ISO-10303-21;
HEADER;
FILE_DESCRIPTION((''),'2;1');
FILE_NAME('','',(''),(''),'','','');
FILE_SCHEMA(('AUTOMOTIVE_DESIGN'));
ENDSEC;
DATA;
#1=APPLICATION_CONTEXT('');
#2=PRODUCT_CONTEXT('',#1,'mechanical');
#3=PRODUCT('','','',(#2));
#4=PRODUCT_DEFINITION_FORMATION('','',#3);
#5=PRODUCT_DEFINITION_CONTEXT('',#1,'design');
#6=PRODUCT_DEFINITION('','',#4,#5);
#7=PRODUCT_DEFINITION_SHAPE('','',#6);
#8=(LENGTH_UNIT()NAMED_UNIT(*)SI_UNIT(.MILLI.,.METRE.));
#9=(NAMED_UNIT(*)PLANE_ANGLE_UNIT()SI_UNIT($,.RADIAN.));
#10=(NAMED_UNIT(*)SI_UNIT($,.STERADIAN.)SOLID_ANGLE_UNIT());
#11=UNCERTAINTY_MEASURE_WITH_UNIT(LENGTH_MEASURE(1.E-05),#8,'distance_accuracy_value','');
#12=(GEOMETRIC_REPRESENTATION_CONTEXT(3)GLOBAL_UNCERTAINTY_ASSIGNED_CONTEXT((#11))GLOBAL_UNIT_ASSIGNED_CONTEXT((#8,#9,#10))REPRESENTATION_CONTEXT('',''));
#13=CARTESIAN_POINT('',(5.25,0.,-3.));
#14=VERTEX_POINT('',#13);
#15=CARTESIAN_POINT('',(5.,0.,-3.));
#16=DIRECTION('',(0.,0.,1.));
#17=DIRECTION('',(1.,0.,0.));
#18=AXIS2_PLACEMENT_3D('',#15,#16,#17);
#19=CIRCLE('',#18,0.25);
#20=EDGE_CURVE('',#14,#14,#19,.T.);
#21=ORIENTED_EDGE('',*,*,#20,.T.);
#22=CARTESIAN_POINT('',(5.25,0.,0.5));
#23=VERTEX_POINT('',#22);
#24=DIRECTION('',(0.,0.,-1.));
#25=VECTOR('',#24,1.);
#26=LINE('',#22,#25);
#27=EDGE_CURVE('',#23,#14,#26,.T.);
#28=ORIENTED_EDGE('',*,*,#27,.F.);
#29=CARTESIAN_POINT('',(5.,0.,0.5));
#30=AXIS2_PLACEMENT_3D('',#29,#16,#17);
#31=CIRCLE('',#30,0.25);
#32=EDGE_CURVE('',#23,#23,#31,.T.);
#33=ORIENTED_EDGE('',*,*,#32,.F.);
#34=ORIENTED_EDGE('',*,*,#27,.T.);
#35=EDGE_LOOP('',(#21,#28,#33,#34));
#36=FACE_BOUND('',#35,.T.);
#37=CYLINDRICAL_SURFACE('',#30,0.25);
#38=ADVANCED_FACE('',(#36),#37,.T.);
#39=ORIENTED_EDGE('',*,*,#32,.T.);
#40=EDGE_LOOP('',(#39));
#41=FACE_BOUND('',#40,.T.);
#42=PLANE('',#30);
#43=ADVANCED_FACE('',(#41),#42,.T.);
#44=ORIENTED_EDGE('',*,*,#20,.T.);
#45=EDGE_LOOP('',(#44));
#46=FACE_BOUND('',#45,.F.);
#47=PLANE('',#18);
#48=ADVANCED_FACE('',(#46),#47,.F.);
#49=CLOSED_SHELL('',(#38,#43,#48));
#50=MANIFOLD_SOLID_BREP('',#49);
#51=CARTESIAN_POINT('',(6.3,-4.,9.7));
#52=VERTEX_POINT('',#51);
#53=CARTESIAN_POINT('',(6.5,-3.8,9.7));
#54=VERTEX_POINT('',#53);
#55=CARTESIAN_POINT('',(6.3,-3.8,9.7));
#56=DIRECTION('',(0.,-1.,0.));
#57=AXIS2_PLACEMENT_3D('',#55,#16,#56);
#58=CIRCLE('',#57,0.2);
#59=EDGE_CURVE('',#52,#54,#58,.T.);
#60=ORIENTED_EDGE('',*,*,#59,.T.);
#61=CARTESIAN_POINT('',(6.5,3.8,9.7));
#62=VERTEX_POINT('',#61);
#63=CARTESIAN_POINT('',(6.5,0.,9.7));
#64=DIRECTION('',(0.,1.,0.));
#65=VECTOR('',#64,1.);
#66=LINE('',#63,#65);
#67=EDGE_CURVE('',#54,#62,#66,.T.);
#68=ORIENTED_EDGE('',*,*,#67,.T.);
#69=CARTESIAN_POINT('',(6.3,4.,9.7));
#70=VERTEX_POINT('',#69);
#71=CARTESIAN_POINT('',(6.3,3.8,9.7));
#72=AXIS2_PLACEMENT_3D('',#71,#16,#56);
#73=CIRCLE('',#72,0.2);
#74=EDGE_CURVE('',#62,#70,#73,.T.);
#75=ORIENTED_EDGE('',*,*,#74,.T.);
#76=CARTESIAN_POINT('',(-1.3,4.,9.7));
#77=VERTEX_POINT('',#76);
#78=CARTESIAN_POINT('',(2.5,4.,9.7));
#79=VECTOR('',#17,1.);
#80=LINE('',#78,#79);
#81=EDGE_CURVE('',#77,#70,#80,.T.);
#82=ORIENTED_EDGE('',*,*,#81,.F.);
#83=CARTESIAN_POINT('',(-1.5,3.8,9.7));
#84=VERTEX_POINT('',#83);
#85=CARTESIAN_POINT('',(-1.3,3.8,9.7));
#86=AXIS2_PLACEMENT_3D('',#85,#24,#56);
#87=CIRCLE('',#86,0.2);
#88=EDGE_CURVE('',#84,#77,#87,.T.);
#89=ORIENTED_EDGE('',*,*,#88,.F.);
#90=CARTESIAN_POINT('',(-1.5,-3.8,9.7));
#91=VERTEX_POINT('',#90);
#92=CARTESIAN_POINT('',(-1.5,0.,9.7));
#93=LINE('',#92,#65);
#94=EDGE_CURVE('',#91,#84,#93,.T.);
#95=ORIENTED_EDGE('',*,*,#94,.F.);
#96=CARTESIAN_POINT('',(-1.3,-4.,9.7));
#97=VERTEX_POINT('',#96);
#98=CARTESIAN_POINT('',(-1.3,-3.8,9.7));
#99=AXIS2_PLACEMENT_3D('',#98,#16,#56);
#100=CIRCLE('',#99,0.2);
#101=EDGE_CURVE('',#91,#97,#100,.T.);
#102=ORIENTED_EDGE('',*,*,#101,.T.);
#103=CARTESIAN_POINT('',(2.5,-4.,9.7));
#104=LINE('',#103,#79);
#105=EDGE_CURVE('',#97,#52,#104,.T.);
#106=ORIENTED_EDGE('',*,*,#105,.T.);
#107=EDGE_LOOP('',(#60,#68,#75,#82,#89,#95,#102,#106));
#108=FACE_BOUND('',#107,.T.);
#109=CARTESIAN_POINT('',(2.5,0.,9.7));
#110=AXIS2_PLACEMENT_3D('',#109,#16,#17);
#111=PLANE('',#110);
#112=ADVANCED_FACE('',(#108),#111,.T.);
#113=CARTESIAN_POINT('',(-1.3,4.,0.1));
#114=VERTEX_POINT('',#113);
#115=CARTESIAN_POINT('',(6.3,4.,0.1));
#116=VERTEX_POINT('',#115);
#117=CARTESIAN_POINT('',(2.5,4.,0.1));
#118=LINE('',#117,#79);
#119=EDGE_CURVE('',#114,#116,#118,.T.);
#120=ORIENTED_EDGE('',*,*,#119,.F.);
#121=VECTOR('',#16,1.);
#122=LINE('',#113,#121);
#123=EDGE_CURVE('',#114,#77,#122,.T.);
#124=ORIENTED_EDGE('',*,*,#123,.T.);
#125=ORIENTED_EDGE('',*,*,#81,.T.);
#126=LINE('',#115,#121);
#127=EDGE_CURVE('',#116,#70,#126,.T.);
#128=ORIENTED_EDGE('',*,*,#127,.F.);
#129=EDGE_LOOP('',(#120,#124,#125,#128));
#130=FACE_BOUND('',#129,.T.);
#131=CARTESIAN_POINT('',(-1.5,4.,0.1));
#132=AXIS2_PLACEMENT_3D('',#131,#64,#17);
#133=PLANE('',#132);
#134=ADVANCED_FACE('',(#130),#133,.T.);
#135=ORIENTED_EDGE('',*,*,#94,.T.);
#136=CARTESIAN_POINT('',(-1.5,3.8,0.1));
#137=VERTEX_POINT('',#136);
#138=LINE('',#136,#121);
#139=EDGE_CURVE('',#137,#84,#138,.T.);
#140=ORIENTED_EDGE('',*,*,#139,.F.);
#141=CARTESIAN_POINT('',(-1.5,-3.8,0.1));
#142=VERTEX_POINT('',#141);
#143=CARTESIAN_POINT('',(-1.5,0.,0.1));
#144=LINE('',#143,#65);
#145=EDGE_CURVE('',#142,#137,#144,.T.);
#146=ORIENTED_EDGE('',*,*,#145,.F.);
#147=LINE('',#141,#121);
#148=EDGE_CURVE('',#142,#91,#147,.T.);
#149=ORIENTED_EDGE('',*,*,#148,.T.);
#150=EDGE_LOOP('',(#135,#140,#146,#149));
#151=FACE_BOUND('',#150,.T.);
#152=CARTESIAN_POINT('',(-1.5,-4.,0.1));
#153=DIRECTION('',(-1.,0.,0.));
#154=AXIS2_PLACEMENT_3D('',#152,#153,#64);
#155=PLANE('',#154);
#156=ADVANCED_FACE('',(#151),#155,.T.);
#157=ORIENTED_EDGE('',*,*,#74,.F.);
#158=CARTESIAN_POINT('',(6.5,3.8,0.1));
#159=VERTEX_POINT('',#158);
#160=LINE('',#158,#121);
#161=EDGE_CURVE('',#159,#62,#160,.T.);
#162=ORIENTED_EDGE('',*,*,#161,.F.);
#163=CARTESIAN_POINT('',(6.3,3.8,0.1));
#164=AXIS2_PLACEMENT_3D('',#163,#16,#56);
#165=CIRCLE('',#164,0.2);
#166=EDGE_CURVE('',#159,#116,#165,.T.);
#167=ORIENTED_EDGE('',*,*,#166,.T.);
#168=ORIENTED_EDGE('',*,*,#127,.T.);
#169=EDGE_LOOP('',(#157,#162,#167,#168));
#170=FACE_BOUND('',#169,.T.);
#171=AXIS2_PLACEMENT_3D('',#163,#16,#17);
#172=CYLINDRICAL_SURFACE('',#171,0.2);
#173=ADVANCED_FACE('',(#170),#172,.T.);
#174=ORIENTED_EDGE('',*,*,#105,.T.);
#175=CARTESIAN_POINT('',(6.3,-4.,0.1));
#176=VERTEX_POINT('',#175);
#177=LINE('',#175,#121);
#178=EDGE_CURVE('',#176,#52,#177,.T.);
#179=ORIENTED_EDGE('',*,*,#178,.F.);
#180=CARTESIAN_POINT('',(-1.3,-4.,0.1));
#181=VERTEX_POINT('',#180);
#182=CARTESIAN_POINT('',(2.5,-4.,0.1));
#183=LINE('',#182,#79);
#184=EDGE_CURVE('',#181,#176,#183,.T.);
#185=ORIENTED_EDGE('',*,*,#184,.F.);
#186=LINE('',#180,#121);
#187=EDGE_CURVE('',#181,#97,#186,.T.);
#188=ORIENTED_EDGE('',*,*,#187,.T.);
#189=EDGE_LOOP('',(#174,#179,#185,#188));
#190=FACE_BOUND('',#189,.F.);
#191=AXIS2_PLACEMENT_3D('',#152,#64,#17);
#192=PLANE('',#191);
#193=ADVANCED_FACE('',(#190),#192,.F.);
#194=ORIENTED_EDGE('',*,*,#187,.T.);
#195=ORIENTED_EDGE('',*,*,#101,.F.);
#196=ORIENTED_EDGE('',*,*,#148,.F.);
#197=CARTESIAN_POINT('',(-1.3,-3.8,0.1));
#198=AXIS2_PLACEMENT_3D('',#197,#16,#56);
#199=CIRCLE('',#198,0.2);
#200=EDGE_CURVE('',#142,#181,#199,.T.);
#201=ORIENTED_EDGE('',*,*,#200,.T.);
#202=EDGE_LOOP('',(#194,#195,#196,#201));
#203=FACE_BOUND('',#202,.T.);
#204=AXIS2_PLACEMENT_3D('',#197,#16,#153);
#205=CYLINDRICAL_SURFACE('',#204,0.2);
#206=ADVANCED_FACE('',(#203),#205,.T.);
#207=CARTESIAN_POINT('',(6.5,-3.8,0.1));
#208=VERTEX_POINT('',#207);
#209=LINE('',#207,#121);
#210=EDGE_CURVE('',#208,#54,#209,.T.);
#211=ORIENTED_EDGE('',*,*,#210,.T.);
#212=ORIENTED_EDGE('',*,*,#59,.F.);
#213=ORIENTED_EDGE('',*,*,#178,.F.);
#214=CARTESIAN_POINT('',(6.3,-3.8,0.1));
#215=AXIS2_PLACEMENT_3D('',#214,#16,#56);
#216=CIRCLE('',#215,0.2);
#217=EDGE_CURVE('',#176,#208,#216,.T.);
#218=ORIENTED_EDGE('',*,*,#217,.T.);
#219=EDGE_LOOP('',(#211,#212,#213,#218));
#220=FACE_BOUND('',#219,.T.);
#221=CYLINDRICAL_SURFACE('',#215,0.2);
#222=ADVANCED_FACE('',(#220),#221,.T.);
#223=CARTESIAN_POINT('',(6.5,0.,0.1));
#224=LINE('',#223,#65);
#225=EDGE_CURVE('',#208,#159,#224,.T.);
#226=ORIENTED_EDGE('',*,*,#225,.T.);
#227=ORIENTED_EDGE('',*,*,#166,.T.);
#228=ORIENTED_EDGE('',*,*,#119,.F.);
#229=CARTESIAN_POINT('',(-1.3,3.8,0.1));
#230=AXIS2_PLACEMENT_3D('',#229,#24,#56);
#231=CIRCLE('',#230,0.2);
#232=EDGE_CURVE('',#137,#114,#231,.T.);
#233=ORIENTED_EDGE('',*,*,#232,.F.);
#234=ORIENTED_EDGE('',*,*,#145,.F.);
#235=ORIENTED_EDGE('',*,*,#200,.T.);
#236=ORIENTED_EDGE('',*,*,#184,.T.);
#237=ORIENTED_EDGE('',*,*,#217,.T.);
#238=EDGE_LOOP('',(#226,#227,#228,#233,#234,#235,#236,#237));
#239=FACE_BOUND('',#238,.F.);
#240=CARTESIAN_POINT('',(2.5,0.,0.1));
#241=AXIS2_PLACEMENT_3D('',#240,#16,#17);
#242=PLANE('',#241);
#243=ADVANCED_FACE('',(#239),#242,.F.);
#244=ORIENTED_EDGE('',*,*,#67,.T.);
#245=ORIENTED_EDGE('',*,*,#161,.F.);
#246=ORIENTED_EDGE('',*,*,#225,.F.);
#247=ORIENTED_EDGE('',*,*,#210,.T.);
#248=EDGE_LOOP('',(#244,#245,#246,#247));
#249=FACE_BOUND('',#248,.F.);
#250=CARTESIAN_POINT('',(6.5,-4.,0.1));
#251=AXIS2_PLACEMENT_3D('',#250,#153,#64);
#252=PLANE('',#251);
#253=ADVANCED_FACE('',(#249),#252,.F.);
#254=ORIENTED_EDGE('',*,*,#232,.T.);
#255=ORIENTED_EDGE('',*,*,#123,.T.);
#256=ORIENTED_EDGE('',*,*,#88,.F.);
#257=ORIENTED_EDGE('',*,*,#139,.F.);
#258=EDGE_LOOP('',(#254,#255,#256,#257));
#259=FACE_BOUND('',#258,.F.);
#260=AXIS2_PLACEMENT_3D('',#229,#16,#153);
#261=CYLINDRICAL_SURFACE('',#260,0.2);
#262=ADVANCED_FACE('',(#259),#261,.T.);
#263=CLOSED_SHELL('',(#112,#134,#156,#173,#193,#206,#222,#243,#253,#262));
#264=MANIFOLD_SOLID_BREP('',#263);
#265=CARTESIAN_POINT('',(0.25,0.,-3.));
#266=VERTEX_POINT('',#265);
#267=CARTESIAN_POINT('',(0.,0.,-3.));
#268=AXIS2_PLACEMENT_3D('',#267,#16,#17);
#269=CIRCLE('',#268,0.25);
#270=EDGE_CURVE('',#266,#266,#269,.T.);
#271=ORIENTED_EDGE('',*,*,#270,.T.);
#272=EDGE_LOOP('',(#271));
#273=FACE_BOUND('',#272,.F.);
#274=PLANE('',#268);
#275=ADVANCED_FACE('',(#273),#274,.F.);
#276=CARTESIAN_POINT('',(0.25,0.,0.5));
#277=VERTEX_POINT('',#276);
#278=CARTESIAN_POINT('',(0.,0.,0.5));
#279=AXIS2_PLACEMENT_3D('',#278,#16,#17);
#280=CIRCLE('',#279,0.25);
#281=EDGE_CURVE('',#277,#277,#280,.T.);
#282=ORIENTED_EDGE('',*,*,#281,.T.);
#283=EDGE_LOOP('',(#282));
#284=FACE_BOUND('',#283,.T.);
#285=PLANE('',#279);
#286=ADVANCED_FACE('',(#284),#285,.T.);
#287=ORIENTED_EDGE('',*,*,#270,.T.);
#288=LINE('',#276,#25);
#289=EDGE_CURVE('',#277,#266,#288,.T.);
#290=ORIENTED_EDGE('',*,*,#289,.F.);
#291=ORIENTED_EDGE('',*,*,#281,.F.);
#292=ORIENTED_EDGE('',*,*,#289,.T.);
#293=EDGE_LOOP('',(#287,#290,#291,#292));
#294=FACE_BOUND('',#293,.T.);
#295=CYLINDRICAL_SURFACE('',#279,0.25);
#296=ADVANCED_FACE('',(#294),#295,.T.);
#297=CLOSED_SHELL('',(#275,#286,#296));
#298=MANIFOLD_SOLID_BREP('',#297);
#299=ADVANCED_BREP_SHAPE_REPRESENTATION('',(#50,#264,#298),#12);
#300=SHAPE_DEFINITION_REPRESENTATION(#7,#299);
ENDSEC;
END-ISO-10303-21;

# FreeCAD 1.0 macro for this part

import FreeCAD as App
import Part
import Sketcher


def edges_at(feature, points):
    """Names of the edges that pass closest to the given points."""
    edges = feature.Shape.Edges
    near = lambda p: min(range(len(edges)), key=lambda i: edges[i].distToShape(Part.Vertex(*p))[0])
    return sorted({f"Edge{near(p) + 1}" for p in points})


def add_polygon(sketch, points):
    """Adds a closed chain of lines whose ends are joined by coincident constraints."""
    first, n = sketch.GeometryCount, len(points)
    for a, b in zip(points, points[1:] + points[:1]):
        sketch.addGeometry(Part.LineSegment(App.Vector(*a, 0), App.Vector(*b, 0)), False)
    for i in range(n):
        sketch.addConstraint(Sketcher.Constraint("Coincident", first + i, 2, first + (i + 1) % n, 1))

doc = App.newDocument("Part")
body = doc.addObject("PartDesign::Body", "Body")
body.AllowCompound = True

sketch1 = body.newObject("Sketcher::SketchObject", "Sketch")
sketch1.AttachmentSupport = (doc.getObject("XY_Plane"), [""])
sketch1.MapMode = "FlatFace"
sketch1.AttachmentOffset = App.Placement(App.Vector(0, 0, 0.5), App.Rotation())
sketch1.addGeometry([
    Part.Circle(App.Vector(0, 0, 0), App.Vector(0, 0, 1), 0.25),
    Part.Circle(App.Vector(5, 0, 0), App.Vector(0, 0, 1), 0.25),
], False)
sketch1.addConstraint([
    Sketcher.Constraint("Coincident", 0, 3, -1, 1),
    Sketcher.Constraint("Equal", 0, 1),
    Sketcher.Constraint("PointOnObject", 1, 3, -1),
    Sketcher.Constraint("Diameter", 0, 0.5),
    Sketcher.Constraint("DistanceX", -1, 1, 1, 3, 5.0),
])
pad1 = body.newObject("PartDesign::Pad", "Pad")
pad1.Profile = sketch1
pad1.Length = 3.5
pad1.Reversed = True
body2 = doc.addObject("PartDesign::Body", "Body001")

sketch2 = body2.newObject("Sketcher::SketchObject", "Sketch001")
sketch2.AttachmentSupport = (doc.getObject("XY_Plane001"), [""])
sketch2.MapMode = "FlatFace"
sketch2.AttachmentOffset = App.Placement(App.Vector(0, 0, 0.1), App.Rotation())
add_polygon(sketch2, [(-2, 4), (-2, -4), (6, -4), (6, 4)])
sketch2.addConstraint([
    Sketcher.Constraint("Vertical", 0),
    Sketcher.Constraint("Horizontal", 1),
    Sketcher.Constraint("Vertical", 2),
    Sketcher.Constraint("Horizontal", 3),
    Sketcher.Constraint("Equal", 3, 0),
    Sketcher.Constraint("DistanceX", 1, 1, 1, 2, 8.0),
    Sketcher.Constraint("DistanceY", 0, 2, -1, 1, 4.0),
    Sketcher.Constraint("DistanceX", 0, 2, -1, 1, 1.5),
])
pad2 = body2.newObject("PartDesign::Pad", "Pad001")
pad2.Profile = sketch2
pad2.Length = 9.6
doc.recompute()

fillet = body2.newObject("PartDesign::Fillet", "Fillet")
fillet.Base = (pad2, edges_at(pad2, [
    (6.5, -4, 4.9),
    (6.5, 4, 4.9),
    (-1.5, -4, 4.9),
    (-1.5, 4, 4.9),
]))
fillet.Radius = 0.2

doc.recompute()
